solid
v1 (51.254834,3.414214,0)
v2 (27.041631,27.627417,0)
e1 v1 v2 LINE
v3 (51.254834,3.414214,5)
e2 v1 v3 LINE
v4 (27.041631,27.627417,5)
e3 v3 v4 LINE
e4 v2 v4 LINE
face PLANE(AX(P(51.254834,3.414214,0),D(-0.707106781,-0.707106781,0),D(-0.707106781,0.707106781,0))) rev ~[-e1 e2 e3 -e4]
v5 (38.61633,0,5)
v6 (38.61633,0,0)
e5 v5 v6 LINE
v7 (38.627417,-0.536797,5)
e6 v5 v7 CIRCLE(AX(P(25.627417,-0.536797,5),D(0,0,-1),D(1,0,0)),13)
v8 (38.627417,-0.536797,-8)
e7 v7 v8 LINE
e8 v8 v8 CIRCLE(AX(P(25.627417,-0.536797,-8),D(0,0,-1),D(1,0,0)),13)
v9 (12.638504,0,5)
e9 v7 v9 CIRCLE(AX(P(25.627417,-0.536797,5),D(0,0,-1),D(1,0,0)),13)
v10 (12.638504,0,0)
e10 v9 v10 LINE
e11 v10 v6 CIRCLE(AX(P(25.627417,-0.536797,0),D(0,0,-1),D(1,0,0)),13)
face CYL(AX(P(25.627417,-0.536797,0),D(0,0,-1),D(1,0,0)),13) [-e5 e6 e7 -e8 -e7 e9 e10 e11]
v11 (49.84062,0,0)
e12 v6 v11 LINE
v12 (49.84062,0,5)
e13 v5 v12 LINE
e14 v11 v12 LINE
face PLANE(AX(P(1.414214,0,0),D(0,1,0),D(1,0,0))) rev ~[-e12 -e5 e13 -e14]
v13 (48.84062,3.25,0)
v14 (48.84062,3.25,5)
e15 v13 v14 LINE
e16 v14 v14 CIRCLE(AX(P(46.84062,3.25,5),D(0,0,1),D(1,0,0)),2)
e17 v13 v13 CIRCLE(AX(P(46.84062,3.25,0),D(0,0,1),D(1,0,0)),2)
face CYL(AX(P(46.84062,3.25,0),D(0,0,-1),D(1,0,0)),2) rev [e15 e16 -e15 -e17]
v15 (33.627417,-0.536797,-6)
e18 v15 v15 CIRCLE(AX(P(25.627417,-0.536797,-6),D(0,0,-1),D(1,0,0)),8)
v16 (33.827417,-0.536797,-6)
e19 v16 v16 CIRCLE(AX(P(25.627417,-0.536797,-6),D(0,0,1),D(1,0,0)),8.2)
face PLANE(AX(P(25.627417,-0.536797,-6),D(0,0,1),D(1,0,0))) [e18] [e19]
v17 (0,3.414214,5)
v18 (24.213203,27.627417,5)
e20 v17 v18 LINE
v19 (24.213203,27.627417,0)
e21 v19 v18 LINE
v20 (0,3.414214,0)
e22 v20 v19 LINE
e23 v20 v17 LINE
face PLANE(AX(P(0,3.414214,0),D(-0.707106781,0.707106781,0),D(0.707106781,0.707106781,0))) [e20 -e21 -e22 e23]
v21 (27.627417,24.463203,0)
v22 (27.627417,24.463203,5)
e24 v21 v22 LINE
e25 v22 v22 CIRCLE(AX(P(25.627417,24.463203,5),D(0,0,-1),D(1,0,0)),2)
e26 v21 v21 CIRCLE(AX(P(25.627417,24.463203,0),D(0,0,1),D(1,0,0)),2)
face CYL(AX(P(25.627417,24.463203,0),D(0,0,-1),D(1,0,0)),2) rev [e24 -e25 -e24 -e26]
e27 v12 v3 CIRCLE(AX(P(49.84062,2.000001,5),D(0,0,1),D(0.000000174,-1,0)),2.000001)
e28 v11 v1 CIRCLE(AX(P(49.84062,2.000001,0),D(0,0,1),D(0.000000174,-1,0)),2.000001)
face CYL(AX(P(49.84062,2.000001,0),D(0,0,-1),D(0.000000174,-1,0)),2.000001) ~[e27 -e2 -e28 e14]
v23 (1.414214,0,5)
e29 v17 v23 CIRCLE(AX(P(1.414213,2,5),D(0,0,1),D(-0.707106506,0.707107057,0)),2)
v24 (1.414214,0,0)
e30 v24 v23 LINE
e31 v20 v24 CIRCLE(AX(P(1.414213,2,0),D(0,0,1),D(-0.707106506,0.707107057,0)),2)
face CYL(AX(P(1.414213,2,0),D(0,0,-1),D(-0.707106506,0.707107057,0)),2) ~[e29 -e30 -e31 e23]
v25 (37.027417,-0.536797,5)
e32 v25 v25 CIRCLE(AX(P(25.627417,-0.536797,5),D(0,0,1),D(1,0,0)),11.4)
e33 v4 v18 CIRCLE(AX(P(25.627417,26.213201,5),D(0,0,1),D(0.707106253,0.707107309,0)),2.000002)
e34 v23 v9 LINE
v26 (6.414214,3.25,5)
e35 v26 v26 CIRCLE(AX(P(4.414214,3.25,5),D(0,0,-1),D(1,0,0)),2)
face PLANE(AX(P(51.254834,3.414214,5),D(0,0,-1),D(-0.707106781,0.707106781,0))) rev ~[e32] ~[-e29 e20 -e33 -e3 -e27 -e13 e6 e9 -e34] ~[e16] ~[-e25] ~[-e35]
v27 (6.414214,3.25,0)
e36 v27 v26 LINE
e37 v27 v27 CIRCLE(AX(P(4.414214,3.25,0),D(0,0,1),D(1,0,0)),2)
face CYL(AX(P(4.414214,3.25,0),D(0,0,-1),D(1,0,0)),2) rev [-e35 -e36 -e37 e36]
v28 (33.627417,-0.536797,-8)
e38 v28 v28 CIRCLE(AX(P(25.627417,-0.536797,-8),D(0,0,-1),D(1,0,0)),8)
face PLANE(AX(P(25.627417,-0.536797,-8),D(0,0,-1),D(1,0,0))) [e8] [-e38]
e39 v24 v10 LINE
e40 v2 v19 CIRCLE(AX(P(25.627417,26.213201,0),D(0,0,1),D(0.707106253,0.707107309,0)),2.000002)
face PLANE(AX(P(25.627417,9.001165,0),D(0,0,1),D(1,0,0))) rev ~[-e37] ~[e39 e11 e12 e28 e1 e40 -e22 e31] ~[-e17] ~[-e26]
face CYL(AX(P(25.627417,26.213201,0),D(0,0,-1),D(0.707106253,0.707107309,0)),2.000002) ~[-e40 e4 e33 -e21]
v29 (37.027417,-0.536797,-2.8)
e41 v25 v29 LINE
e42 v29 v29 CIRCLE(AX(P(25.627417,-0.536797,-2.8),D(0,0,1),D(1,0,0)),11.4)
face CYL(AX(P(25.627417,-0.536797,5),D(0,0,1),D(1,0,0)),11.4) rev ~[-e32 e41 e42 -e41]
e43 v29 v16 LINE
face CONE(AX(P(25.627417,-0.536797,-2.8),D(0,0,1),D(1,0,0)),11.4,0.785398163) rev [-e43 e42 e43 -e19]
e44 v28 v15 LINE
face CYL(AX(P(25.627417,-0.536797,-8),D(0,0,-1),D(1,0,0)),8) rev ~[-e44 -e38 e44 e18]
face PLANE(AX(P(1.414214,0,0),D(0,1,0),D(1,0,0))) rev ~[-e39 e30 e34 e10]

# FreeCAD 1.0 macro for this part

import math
import FreeCAD as App
import Part
import Sketcher
from FreeCAD import Vector
Q = App.Units.Quantity


def edges_at(feature, points):
    """Names of the edges that pass closest to the given points."""
    edges = feature.Shape.Edges
    near = lambda p: min(range(len(edges)), key=lambda i: edges[i].distToShape(Part.Vertex(*p))[0])
    return sorted({f"Edge{near(p) + 1}" for p in points})

doc = App.newDocument("Part")
params = doc.addObject("Spreadsheet::Sheet", "Params")
for row, (alias, value) in enumerate([
    ("sketch1_diameter", "4 mm"),
    ("pad1_length", "5 mm"),
    ("sketch2_diameter", "26 mm"),
    ("pad2_length", "16 mm"),
    ("sketch3_diameter", "16 mm"),
    ("sketch4_height", "4 mm"),
    ("sketch5_diameter", "22.8 mm"),
    ("pocket3_length", "11 mm"),
    ("chamfer_size", "3.2 mm"),
], start=1):
    params.set(f"A{row}", alias)
    params.set(f"B{row}", "=" + value)
    params.setAlias(f"B{row}", alias)

body = doc.addObject("PartDesign::Body", "Body")

# Sketch on XY plane
sketch1 = body.newObject("Sketcher::SketchObject", "Sketch")
sketch1.AttachmentSupport = (doc.getObject("XY_Plane"), [""])
sketch1.MapMode = "FlatFace"
sketch1.addGeometry(Part.LineSegment(Vector(1.4, 0, 0), Vector(49.8, 0, 0)), False)
sketch1.addGeometry(Part.ArcOfCircle(Part.Circle(Vector(49.8, 2, 0), Vector(0, 0, 1), 2), math.radians(-90), math.radians(45)), False)
sketch1.addGeometry(Part.LineSegment(Vector(51.3, 3.4, 0), Vector(27, 27.6, 0)), False)
sketch1.addGeometry(Part.ArcOfCircle(Part.Circle(Vector(25.6, 26.2, 0), Vector(0, 0, 1), 2), math.radians(45), math.radians(135)), False)
sketch1.addGeometry(Part.LineSegment(Vector(24.2, 27.6, 0), Vector(0, 3.4, 0)), False)
sketch1.addGeometry(Part.ArcOfCircle(Part.Circle(Vector(1.4, 2, 0), Vector(0, 0, 1), 2), math.radians(135), math.radians(270)), False)
sketch1.addGeometry(Part.Circle(Vector(4.4, 3.2, 0), Vector(0, 0, 1), 2), False)
sketch1.addGeometry(Part.Circle(Vector(46.8, 3.2, 0), Vector(0, 0, 1), 2), False)
sketch1.addGeometry(Part.Circle(Vector(25.6, 24.5, 0), Vector(0, 0, 1), 2), False)
sketch1.addConstraint(Sketcher.Constraint("Tangent", 0, 2, 1, 1))
sketch1.addConstraint(Sketcher.Constraint("Tangent", 1, 2, 2, 1))
sketch1.addConstraint(Sketcher.Constraint("Tangent", 2, 2, 3, 1))
sketch1.addConstraint(Sketcher.Constraint("Tangent", 3, 2, 4, 1))
sketch1.addConstraint(Sketcher.Constraint("Tangent", 4, 2, 5, 1))
sketch1.addConstraint(Sketcher.Constraint("Tangent", 5, 2, 0, 1))
sketch1.addConstraint(Sketcher.Constraint("Horizontal", 0))
sketch1.addConstraint(Sketcher.Constraint("Equal", 1, 3))
sketch1.addConstraint(Sketcher.Constraint("Equal", 1, 5))
sketch1.addConstraint(Sketcher.Constraint("Equal", 5, 6))
sketch1.addConstraint(Sketcher.Constraint("Equal", 6, 7))
sketch1.addConstraint(Sketcher.Constraint("Equal", 7, 8))
sketch1.addConstraint(Sketcher.Constraint("PointOnObject", 0, 2, -1))
sketch1.addConstraint(Sketcher.Constraint("PointOnObject", 4, 2, -2))
sketch1.addConstraint(Sketcher.Constraint("Perpendicular", 2, 4))
sketch1.addConstraint(Sketcher.Constraint("Horizontal", 6, 3, 7, 3))
sketch1.addConstraint(Sketcher.Constraint("Horizontal", 2, 2, 3, 2))
sketch1.addConstraint(Sketcher.Constraint("Vertical", 3, 3, 8, 3))
sketch1.addConstraint(Sketcher.Constraint("Diameter", 6, Q("4 mm")))
sketch1.addConstraint(Sketcher.Constraint("DistanceX", 5, 3, 6, 3, Q("3.000001 mm")))
sketch1.addConstraint(Sketcher.Constraint("DistanceX", 7, 3, 1, 3, Q("3 mm")))
sketch1.addConstraint(Sketcher.Constraint("DistanceY", -1, 1, 6, 3, Q("3.25 mm")))
sketch1.addConstraint(Sketcher.Constraint("DistanceY", -1, 1, 3, 3, Q("26.213201 mm")))
sketch1.addConstraint(Sketcher.Constraint("DistanceY", 1, 2, 8, 3, Q("21.048989 mm")))
sketch1.setExpression("Constraints[18]", "Params.sketch1_diameter")
pad1 = body.newObject("PartDesign::Pad", "Pad")
pad1.Profile = sketch1
pad1.setExpression("Length", "Params.pad1_length")

# Sketch on XY plane
sketch2 = body.newObject("Sketcher::SketchObject", "Sketch001")
sketch2.AttachmentSupport = (doc.getObject("XY_Plane"), [""])
sketch2.MapMode = "FlatFace"
sketch2.addGeometry(Part.Circle(Vector(26, -1, 0), Vector(0, 0, 1), 13), False)
sketch2.addConstraint(Sketcher.Constraint("Diameter", 0, Q("26 mm")))
sketch2.addConstraint(Sketcher.Constraint("DistanceX", -1, 1, 0, 3, Q("25.627417 mm")))
sketch2.addConstraint(Sketcher.Constraint("DistanceY", 0, 3, -1, 1, Q("0.536797 mm")))
sketch2.setExpression("Constraints[0]", "Params.sketch2_diameter")
pad2 = body.newObject("PartDesign::Pad", "Pad001")
pad2.Profile = sketch2
pad2.setExpression("Length", "Params.pad2_length")
pad2.Midplane = True

# Sketch on XY plane
sketch3 = body.newObject("Sketcher::SketchObject", "Sketch002")
sketch3.AttachmentSupport = (doc.getObject("XY_Plane"), [""])
sketch3.MapMode = "FlatFace"
sketch3.AttachmentOffset = App.Placement(Vector(0, 0, -8), App.Rotation())
sketch3.addGeometry(Part.Circle(Vector(26, -1, 0), Vector(0, 0, 1), 8), False)
sketch3.addConstraint(Sketcher.Constraint("Diameter", 0, Q("16 mm")))
sketch3.addConstraint(Sketcher.Constraint("DistanceX", -1, 1, 0, 3, Q("25.627417 mm")))
sketch3.addConstraint(Sketcher.Constraint("DistanceY", 0, 3, -1, 1, Q("0.536797 mm")))
sketch3.setExpression("Constraints[0]", "Params.sketch3_diameter")
pocket1 = body.newObject("PartDesign::Pocket", "Pocket")
pocket1.Profile = sketch3
pocket1.Type = "ThroughAll"
pocket1.Reversed = True

# Sketch on an angled plane
sketch4 = body.newObject("Sketcher::SketchObject", "Sketch003")
sketch4.Placement = App.Placement(Vector(27.334524, 27.334524, 0), App.Rotation(Vector(-0.707106781, 0.707106781, 0), Vector(0, 0, 0.999999999), Vector(0.707106781, 0.707106781, 0), "ZXY"))
sketch4.addGeometry(Part.LineSegment(Vector(-33.8, 9, 0), Vector(-33.8, 5, 0)), False)
sketch4.addGeometry(Part.LineSegment(Vector(-33.8, 5, 0), Vector(0.4, 5, 0)), False)
sketch4.addGeometry(Part.LineSegment(Vector(0.4, 5, 0), Vector(0.4, 9, 0)), False)
sketch4.addGeometry(Part.LineSegment(Vector(0.4, 9, 0), Vector(-33.8, 9, 0)), False)
sketch4.addConstraint(Sketcher.Constraint("Coincident", 0, 2, 1, 1))
sketch4.addConstraint(Sketcher.Constraint("Coincident", 1, 2, 2, 1))
sketch4.addConstraint(Sketcher.Constraint("Coincident", 2, 2, 3, 1))
sketch4.addConstraint(Sketcher.Constraint("Coincident", 3, 2, 0, 1))
sketch4.addConstraint(Sketcher.Constraint("Vertical", 0))
sketch4.addConstraint(Sketcher.Constraint("Horizontal", 1))
sketch4.addConstraint(Sketcher.Constraint("Vertical", 2))
sketch4.addConstraint(Sketcher.Constraint("Horizontal", 3))
sketch4.addConstraint(Sketcher.Constraint("DistanceY", 0, 2, 0, 1, Q("4 mm")))
sketch4.addConstraint(Sketcher.Constraint("DistanceY", -1, 1, 0, 2, Q("5 mm")))
sketch4.addConstraint(Sketcher.Constraint("DistanceX", 1, 1, 1, 2, Q("34.242641 mm")))
sketch4.addConstraint(Sketcher.Constraint("DistanceX", 0, 2, -1, 1, Q("33.828426 mm")))
sketch4.setExpression("Constraints[8]", "Params.sketch4_height")
pocket2 = body.newObject("PartDesign::Pocket", "Pocket001")
pocket2.Profile = sketch4
pocket2.Type = "ThroughAll"

# Sketch on XY plane
sketch5 = body.newObject("Sketcher::SketchObject", "Sketch004")
sketch5.AttachmentSupport = (doc.getObject("XY_Plane"), [""])
sketch5.MapMode = "FlatFace"
sketch5.AttachmentOffset = App.Placement(Vector(0, 0, 5), App.Rotation())
sketch5.addGeometry(Part.Circle(Vector(26, -1, 0), Vector(0, 0, 1), 11), False)
sketch5.addConstraint(Sketcher.Constraint("Diameter", 0, Q("22.8 mm")))
sketch5.addConstraint(Sketcher.Constraint("DistanceX", -1, 1, 0, 3, Q("25.627417 mm")))
sketch5.addConstraint(Sketcher.Constraint("DistanceY", 0, 3, -1, 1, Q("0.536797 mm")))
sketch5.setExpression("Constraints[0]", "Params.sketch5_diameter")
pocket3 = body.newObject("PartDesign::Pocket", "Pocket002")
pocket3.Profile = sketch5
pocket3.setExpression("Length", "Params.pocket3_length")
doc.recompute()

chamfer = body.newObject("PartDesign::Chamfer", "Chamfer")
chamfer.Base = (pocket3, edges_at(pocket3, [(14.227, -0.537, -6)]))
chamfer.setExpression("Size", "Params.chamfer_size")

doc.recompute()
